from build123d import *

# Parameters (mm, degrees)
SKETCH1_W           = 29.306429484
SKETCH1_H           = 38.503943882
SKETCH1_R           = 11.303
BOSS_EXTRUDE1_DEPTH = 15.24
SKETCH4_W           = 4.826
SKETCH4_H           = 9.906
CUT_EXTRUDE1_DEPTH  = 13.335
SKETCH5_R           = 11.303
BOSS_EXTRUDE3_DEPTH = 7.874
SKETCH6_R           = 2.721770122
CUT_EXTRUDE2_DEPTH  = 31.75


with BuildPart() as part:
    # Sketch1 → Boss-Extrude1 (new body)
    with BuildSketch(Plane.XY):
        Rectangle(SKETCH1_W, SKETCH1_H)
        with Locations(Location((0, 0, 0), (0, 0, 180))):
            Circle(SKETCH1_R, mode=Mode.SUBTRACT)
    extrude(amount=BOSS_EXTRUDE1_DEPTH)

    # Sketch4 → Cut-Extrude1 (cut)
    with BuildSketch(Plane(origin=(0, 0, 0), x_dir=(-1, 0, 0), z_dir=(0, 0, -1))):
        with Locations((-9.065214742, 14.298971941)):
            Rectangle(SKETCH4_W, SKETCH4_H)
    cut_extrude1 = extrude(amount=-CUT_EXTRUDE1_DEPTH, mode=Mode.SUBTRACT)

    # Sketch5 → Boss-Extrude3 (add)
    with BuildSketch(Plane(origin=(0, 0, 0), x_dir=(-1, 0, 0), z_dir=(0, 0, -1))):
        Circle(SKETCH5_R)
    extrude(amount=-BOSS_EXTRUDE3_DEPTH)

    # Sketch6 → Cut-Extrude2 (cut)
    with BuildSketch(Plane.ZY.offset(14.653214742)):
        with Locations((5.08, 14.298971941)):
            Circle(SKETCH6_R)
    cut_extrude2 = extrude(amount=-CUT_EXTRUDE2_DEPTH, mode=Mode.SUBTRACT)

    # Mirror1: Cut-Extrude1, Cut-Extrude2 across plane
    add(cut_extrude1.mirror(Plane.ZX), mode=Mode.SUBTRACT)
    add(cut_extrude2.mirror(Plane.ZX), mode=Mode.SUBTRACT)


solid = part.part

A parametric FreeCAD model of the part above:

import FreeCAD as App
import Part
import Sketcher
Q = App.Units.Quantity

doc = App.newDocument("Part")
body = doc.addObject("PartDesign::Body", "Body")

# Sketch on XY plane
sketch1 = body.newObject("Sketcher::SketchObject", "Sketch")
sketch1.AttachmentSupport = (doc.getObject("XY_Plane"), [""])
sketch1.MapMode = "FlatFace"
sketch1.addGeometry([
    Part.LineSegment(App.Vector(-15, 19, 0), App.Vector(-15, -19, 0)),  # 0
    Part.LineSegment(App.Vector(-15, -19, 0), App.Vector(15, -19, 0)),  # 1
    Part.LineSegment(App.Vector(15, -19, 0), App.Vector(15, 19, 0)),  # 2
    Part.LineSegment(App.Vector(15, 19, 0), App.Vector(-15, 19, 0)),  # 3
    Part.Circle(App.Vector(0, 0, 0), App.Vector(0, 0, 1), 11),  # 4
], False)
sketch1.addConstraint([
    Sketcher.Constraint("Coincident", 0, 2, 1, 1),
    Sketcher.Constraint("Coincident", 1, 2, 2, 1),
    Sketcher.Constraint("Coincident", 2, 2, 3, 1),
    Sketcher.Constraint("Coincident", 3, 2, 0, 1),
    Sketcher.Constraint("Vertical", 0),
    Sketcher.Constraint("Horizontal", 1),
    Sketcher.Constraint("Vertical", 2),
    Sketcher.Constraint("Horizontal", 3),
    Sketcher.Constraint("Coincident", 4, 3, -1, 1),
    Sketcher.Constraint("Symmetric", 0, 2, 2, 2, -1, 1),
    Sketcher.Constraint("Diameter", 4, Q("0.89 in")),
    Sketcher.Constraint("DistanceX", 1, 1, 1, 2, 29.306429),
    Sketcher.Constraint("DistanceY", 0, 2, 0, 1, 38.503944),
])
pad1 = body.newObject("PartDesign::Pad", "Pad")
pad1.Profile = sketch1
pad1.Length = Q("0.6 in")

# Sketch on XY plane
sketch2 = body.newObject("Sketcher::SketchObject", "Sketch001")
sketch2.AttachmentSupport = (doc.getObject("XY_Plane"), [""])
sketch2.MapMode = "FlatFace"
sketch2.addGeometry([
    Part.LineSegment(App.Vector(11.5, 19.3, 0), App.Vector(11.5, 9.3, 0)),
    Part.LineSegment(App.Vector(11.5, 9.3, 0), App.Vector(6.7, 9.3, 0)),
    Part.LineSegment(App.Vector(6.7, 9.3, 0), App.Vector(6.7, 19.3, 0)),
    Part.LineSegment(App.Vector(6.7, 19.3, 0), App.Vector(11.5, 19.3, 0)),
], False)
sketch2.addConstraint([
    Sketcher.Constraint("Coincident", 0, 2, 1, 1),
    Sketcher.Constraint("Coincident", 1, 2, 2, 1),
    Sketcher.Constraint("Coincident", 2, 2, 3, 1),
    Sketcher.Constraint("Coincident", 3, 2, 0, 1),
    Sketcher.Constraint("Vertical", 0),
    Sketcher.Constraint("Horizontal", 1),
    Sketcher.Constraint("Vertical", 2),
    Sketcher.Constraint("Horizontal", 3),
    Sketcher.Constraint("DistanceX", 1, 2, 1, 1, Q("0.19 in")),
    Sketcher.Constraint("DistanceY", 0, 2, 0, 1, Q("0.39 in")),
    Sketcher.Constraint("DistanceY", -1, 1, 0, 2, 9.345972),
    Sketcher.Constraint("DistanceX", -1, 1, 0, 2, 11.478215),
])
pocket1 = body.newObject("PartDesign::Pocket", "Pocket")
pocket1.Profile = sketch2
pocket1.Length = Q("0.525 in")
pocket1.Reversed = True

# Sketch on XY plane
sketch3 = body.newObject("Sketcher::SketchObject", "Sketch002")
sketch3.AttachmentSupport = (doc.getObject("XY_Plane"), [""])
sketch3.MapMode = "FlatFace"
sketch3.addGeometry(Part.Circle(App.Vector(0, 0, 0), App.Vector(0, 0, 1), 11), False)
sketch3.addConstraint([
    Sketcher.Constraint("Coincident", 0, 3, -1, 1),
    Sketcher.Constraint("Diameter", 0, Q("0.89 in")),
])
pad2 = body.newObject("PartDesign::Pad", "Pad001")
pad2.Profile = sketch3
pad2.Length = Q("0.31 in")

# Sketch on YZ plane
sketch4 = body.newObject("Sketcher::SketchObject", "Sketch003")
sketch4.AttachmentSupport = (doc.getObject("YZ_Plane"), [""])
sketch4.MapMode = "FlatFace"
sketch4.AttachmentOffset = App.Placement(App.Vector(0, 0, -14.653215), App.Rotation())
sketch4.addGeometry(Part.Circle(App.Vector(14.3, 5.1, 0), App.Vector(0, 0, 1), 2.7), False)
sketch4.addConstraint([
    Sketcher.Constraint("DistanceY", -1, 1, 0, 3, Q("0.2 in")),
    Sketcher.Constraint("Diameter", 0, 5.44354),
    Sketcher.Constraint("DistanceX", -1, 1, 0, 3, 14.298972),
])
pocket2 = body.newObject("PartDesign::Pocket", "Pocket001")
pocket2.Profile = sketch4
pocket2.Length = Q("1.25 in")
pocket2.Reversed = True
doc.recompute()

mirrored = body.newObject("PartDesign::Mirrored", "Mirrored")
mirrored.Originals = [pocket1, pocket2]
mirrored.MirrorPlane = (doc.getObject("XZ_Plane"), [""])
body.Tip = mirrored

doc.recompute()
